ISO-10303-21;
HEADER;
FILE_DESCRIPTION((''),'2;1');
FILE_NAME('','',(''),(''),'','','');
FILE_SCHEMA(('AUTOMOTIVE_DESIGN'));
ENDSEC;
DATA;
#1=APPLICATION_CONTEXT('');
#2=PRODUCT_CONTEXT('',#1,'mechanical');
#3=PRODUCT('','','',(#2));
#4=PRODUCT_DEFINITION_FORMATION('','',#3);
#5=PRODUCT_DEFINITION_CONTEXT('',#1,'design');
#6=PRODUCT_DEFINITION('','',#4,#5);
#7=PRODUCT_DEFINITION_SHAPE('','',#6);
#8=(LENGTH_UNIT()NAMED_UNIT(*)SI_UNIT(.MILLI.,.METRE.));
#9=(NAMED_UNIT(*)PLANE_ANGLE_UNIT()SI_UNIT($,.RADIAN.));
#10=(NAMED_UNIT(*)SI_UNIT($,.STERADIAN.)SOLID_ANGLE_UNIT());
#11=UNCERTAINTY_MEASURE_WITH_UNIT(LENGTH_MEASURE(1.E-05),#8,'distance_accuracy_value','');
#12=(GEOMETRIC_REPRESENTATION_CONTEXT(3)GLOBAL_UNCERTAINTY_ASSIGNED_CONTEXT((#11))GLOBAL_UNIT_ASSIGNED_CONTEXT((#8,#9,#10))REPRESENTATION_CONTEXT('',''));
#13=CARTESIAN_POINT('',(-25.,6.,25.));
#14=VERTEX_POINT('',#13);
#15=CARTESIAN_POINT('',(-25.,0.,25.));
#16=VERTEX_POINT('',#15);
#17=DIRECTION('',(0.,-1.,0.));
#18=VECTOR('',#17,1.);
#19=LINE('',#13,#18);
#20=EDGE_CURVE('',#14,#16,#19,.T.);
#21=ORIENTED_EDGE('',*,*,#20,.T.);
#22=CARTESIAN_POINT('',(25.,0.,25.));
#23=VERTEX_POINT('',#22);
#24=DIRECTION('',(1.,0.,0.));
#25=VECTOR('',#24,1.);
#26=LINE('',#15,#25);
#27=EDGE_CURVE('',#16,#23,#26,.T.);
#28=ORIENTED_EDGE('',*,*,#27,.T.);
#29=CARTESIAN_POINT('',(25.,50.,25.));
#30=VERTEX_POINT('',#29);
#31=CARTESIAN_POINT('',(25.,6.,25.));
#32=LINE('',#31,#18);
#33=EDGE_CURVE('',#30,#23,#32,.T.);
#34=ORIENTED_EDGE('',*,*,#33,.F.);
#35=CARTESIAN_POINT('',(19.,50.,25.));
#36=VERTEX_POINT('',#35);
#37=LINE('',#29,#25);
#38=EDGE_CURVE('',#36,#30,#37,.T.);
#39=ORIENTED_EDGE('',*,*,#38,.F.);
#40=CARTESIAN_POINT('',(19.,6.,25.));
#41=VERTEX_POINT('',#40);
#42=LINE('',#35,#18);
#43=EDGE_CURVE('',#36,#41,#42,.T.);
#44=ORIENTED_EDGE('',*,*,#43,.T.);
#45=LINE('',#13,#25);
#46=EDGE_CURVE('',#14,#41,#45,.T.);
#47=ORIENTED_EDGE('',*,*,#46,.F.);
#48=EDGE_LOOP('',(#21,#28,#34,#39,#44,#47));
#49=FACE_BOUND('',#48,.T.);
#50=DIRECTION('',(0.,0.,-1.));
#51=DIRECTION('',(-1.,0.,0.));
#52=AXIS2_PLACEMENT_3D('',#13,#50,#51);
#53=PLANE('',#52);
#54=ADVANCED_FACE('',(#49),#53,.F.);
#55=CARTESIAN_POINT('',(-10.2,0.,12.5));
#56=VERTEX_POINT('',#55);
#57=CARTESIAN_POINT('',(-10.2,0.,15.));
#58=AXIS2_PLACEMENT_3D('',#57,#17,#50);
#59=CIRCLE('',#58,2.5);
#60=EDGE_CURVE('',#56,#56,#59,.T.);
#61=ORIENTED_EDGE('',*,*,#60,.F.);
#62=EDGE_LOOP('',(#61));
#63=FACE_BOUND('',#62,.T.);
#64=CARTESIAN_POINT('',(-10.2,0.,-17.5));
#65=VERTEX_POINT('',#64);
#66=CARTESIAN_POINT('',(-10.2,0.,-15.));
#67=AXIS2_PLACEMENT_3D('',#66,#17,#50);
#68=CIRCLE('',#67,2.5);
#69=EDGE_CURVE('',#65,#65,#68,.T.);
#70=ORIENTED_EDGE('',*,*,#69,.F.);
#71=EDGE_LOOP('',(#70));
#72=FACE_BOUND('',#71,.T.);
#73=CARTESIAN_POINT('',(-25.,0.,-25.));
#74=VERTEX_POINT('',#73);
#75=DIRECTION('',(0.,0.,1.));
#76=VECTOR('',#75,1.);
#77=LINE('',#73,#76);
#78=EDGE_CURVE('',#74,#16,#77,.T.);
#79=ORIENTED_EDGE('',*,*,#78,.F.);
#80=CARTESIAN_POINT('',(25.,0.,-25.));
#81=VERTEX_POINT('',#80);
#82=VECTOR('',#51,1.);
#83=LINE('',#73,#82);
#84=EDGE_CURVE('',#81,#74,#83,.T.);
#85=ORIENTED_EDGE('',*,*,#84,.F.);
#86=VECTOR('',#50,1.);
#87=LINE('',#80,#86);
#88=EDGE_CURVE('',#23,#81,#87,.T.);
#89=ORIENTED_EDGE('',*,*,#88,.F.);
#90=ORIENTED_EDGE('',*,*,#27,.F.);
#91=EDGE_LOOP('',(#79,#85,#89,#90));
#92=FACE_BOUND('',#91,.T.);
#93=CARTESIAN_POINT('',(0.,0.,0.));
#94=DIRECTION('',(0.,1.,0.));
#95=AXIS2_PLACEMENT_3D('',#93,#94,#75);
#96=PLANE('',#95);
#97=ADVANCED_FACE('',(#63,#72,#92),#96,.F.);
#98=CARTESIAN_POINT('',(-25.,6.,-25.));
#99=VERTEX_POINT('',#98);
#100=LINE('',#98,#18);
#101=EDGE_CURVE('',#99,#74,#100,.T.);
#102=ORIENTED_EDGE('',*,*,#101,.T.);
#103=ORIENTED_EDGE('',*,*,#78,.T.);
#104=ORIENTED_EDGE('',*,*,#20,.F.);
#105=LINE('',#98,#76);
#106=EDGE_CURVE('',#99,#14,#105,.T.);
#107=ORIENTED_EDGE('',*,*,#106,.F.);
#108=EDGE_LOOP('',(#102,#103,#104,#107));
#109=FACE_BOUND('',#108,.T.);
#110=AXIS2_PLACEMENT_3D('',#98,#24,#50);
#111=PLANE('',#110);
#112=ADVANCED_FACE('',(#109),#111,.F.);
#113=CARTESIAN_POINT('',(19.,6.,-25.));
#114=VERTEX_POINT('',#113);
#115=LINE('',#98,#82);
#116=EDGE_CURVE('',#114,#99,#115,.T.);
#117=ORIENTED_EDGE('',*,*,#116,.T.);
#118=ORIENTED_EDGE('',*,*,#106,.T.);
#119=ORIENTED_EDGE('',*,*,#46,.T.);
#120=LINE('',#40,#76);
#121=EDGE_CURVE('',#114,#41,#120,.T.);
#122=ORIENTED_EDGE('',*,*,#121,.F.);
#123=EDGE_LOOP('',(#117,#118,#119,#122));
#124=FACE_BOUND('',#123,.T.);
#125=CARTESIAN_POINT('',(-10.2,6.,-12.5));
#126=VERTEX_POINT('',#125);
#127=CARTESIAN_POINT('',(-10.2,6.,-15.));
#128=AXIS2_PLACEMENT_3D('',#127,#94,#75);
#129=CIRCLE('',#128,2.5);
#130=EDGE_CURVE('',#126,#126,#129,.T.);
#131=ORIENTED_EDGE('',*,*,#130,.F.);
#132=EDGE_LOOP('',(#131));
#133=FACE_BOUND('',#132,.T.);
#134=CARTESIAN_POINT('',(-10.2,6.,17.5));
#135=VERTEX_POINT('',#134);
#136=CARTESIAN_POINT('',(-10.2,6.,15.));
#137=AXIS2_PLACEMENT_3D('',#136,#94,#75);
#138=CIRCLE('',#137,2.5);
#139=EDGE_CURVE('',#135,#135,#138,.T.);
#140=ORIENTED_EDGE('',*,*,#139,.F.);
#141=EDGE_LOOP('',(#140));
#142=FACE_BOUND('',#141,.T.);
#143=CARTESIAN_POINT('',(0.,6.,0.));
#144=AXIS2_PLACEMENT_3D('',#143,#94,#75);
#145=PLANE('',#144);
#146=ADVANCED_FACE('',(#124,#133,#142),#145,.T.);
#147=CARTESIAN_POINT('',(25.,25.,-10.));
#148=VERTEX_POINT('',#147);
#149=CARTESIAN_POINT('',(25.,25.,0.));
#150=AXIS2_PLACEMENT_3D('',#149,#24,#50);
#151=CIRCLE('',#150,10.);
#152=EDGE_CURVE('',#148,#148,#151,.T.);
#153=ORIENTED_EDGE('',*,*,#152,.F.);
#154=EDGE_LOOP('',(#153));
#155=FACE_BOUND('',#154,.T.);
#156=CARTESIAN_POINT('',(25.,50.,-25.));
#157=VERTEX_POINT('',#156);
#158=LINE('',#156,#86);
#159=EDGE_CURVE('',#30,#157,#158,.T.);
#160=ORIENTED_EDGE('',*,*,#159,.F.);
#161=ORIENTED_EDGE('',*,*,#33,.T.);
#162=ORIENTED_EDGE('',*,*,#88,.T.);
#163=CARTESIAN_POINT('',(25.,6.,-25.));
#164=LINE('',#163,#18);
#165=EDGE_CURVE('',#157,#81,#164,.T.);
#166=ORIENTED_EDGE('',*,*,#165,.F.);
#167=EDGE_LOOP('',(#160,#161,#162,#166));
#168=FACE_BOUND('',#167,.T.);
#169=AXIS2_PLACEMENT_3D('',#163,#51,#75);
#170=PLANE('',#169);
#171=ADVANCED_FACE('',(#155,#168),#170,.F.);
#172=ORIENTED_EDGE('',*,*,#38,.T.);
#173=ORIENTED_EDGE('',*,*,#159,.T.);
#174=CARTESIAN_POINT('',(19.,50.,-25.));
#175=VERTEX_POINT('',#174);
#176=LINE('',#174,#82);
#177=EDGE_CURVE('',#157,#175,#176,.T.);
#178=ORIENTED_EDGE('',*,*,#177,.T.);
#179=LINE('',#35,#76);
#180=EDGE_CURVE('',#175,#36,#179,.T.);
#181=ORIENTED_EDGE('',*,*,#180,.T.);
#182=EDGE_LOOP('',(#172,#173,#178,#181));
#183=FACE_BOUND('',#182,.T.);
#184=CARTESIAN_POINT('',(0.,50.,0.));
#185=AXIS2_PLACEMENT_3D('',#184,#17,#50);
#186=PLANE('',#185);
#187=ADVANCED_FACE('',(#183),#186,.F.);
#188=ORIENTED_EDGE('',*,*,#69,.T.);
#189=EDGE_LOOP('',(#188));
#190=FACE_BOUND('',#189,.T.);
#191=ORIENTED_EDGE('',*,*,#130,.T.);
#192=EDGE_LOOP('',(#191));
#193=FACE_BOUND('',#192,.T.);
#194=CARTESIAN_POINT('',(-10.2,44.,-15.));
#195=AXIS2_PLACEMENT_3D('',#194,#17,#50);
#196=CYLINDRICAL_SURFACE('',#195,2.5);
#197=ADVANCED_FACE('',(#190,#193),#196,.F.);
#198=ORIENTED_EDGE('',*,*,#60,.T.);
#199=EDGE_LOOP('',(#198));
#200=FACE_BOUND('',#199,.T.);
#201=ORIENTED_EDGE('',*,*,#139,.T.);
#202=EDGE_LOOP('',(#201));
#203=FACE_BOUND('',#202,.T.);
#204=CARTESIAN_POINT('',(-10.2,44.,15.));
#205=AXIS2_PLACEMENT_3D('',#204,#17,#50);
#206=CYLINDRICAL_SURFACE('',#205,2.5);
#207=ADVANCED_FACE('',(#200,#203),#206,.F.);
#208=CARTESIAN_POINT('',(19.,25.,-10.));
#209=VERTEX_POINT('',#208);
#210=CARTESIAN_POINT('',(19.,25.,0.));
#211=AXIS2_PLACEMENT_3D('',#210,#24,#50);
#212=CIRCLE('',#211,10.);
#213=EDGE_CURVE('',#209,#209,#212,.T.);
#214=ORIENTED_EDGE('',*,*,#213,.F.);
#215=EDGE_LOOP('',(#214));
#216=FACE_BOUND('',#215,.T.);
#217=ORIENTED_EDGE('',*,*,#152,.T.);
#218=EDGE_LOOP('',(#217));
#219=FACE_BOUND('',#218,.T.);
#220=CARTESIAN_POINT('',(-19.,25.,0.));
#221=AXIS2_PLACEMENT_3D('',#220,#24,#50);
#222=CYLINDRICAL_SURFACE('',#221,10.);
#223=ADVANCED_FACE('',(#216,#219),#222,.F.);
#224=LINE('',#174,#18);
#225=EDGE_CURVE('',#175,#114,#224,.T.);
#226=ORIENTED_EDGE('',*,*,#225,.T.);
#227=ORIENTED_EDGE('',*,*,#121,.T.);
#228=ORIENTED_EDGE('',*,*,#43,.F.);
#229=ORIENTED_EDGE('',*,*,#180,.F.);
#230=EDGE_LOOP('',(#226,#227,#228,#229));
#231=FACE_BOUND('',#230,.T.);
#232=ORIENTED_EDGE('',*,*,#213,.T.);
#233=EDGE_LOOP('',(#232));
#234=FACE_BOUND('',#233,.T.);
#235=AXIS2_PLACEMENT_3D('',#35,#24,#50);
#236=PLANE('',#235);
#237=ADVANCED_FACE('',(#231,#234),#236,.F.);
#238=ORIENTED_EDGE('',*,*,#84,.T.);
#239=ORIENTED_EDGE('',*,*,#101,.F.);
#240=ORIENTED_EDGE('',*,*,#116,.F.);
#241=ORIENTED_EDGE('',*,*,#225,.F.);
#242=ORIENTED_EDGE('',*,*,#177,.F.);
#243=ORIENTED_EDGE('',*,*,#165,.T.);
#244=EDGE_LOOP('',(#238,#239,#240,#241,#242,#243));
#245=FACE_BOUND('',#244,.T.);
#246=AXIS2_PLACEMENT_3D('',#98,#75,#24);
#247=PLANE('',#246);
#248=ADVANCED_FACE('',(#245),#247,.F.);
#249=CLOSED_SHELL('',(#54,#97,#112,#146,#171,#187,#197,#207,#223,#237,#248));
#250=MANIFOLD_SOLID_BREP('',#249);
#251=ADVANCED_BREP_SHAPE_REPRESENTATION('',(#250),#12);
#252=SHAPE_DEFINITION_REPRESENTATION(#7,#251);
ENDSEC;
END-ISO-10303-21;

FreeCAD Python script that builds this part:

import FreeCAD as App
import Part
import Sketcher

V = App.Vector


def add_polygon(sketch, points):
    """Adds a closed chain of lines whose ends are joined by coincident constraints."""
    first, n = sketch.GeometryCount, len(points)
    for a, b in zip(points, points[1:] + points[:1]):
        sketch.addGeometry(Part.LineSegment(App.Vector(*a, 0), App.Vector(*b, 0)), False)
    for i in range(n):
        sketch.addConstraint(Sketcher.Constraint("Coincident", first + i, 2, first + (i + 1) % n, 1))

doc = App.newDocument("Part")
params = doc.addObject("Spreadsheet::Sheet", "Params")
for row, (alias, value) in enumerate([
    ("sketch1_width", "50 mm"),
    ("pad1_length", "6 mm"),
    ("sketch2_width", "6 mm"),
    ("sketch2_height", "50 mm"),
    ("pad2_length", "44 mm"),
    ("sketch3_diameter", "20 mm"),
    ("pocket1_length", "44 mm"),
    ("sketch4_diameter", "5 mm"),
    ("pocket2_length", "44 mm"),
], start=1):
    params.set(f"A{row}", alias)
    params.set(f"B{row}", "=" + value)
    params.setAlias(f"B{row}", alias)

body = doc.addObject("PartDesign::Body", "Body")

# Sketch on XZ plane
sketch1 = doc.addObject("Sketcher::SketchObject", "Sketch")
body.addObject(sketch1)
sketch1.AttachmentSupport = (doc.XZ_Plane, [""])
sketch1.MapMode = "FlatFace"
add_polygon(sketch1, [(-25, -25), (-25, 25), (25, 25), (25, -25)])  # lines 0-3
sketch1.addConstraint([
    Sketcher.Constraint("Vertical", 0),
    Sketcher.Constraint("Horizontal", 1),
    Sketcher.Constraint("Vertical", 2),
    Sketcher.Constraint("Horizontal", 3),
    Sketcher.Constraint("Symmetric", 0, 2, 2, 2, -1, 1),
    Sketcher.Constraint("Equal", 3, 0),
    Sketcher.Constraint("DistanceX", 1, 1, 1, 2, 50.0),
])
sketch1.setExpression("Constraints[10]", "Params.sketch1_width")
pad1 = doc.addObject("PartDesign::Pad", "Pad")
body.addObject(pad1)
pad1.Profile = sketch1
pad1.setExpression("Length", "Params.pad1_length")
pad1.Reversed = True

# Sketch on XZ plane
sketch2 = doc.addObject("Sketcher::SketchObject", "Sketch001")
body.addObject(sketch2)
sketch2.AttachmentSupport = (doc.XZ_Plane, [""])
sketch2.MapMode = "FlatFace"
sketch2.AttachmentOffset = App.Placement(V(0, 0, -6), App.Rotation())
add_polygon(sketch2, [(19, -25), (19, 25), (25, 25), (25, -25)])  # lines 0-3
sketch2.addConstraint([
    Sketcher.Constraint("Vertical", 0),
    Sketcher.Constraint("Horizontal", 1),
    Sketcher.Constraint("Vertical", 2),
    Sketcher.Constraint("Horizontal", 3),
    Sketcher.Constraint("DistanceX", 1, 1, 1, 2, 6.0),
    Sketcher.Constraint("DistanceY", 0, 1, 0, 2, 50.0),
    Sketcher.Constraint("DistanceX", -1, 1, 0, 2, 19.0),
    Sketcher.Constraint("DistanceY", -1, 1, 0, 2, 25.0),
])
sketch2.setExpression("Constraints[8]", "Params.sketch2_width")
sketch2.setExpression("Constraints[9]", "Params.sketch2_height")
pad2 = doc.addObject("PartDesign::Pad", "Pad001")
body.addObject(pad2)
pad2.Profile = sketch2
pad2.setExpression("Length", "Params.pad2_length")
pad2.Reversed = True

# Sketch on YZ plane
sketch3 = doc.addObject("Sketcher::SketchObject", "Sketch002")
body.addObject(sketch3)
sketch3.AttachmentSupport = (doc.YZ_Plane, [""])
sketch3.MapMode = "FlatFace"
sketch3.AttachmentOffset = App.Placement(V(0, 0, 25), App.Rotation())
sketch3.addGeometry(Part.Circle(V(25, 0, 0), V(0, 0, 1), 10), False)
sketch3.addConstraint([
    Sketcher.Constraint("PointOnObject", 0, 3, -1),
    Sketcher.Constraint("Diameter", 0, 20.0),
    Sketcher.Constraint("DistanceX", -1, 1, 0, 3, 25.0),
])
sketch3.setExpression("Constraints[1]", "Params.sketch3_diameter")
pocket1 = doc.addObject("PartDesign::Pocket", "Pocket")
body.addObject(pocket1)
pocket1.Profile = sketch3
pocket1.setExpression("Length", "Params.pocket1_length")

# Sketch on XZ plane
sketch4 = doc.addObject("Sketcher::SketchObject", "Sketch003")
body.addObject(sketch4)
sketch4.AttachmentSupport = (doc.XZ_Plane, [""])
sketch4.MapMode = "FlatFace"
sketch4.addGeometry([
    Part.Circle(V(-10.2, -15, 0), V(0, 0, 1), 2.5),
    Part.Circle(V(-10.2, 15, 0), V(0, 0, 1), 2.5),
], False)
sketch4.addConstraint([
    Sketcher.Constraint("Equal", 0, 1),
    Sketcher.Constraint("Symmetric", 0, 3, 1, 3, -1),
    Sketcher.Constraint("Diameter", 0, 5.0),
    Sketcher.Constraint("DistanceY", 0, 3, -1, 1, 15.0),
    Sketcher.Constraint("DistanceX", 0, 3, -1, 1, 10.2),
])
sketch4.setExpression("Constraints[2]", "Params.sketch4_diameter")
pocket2 = doc.addObject("PartDesign::Pocket", "Pocket001")
body.addObject(pocket2)
pocket2.Profile = sketch4
pocket2.setExpression("Length", "Params.pocket2_length")

doc.recompute()
